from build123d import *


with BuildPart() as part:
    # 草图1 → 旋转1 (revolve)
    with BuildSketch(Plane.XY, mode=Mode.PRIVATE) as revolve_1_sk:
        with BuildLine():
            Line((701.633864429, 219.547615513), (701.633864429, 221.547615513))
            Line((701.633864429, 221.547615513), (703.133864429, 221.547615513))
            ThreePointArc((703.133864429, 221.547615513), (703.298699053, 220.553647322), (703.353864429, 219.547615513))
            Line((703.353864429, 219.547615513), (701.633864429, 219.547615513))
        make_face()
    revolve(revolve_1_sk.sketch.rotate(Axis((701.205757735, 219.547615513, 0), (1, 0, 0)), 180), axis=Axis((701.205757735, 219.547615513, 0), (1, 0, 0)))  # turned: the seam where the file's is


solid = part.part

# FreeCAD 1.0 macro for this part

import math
import FreeCAD as App
import Part
import Sketcher
from FreeCAD import Vector

doc = App.newDocument("Part")
body = doc.addObject("PartDesign::Body", "Body")

sketch1 = body.newObject("Sketcher::SketchObject", "Sketch")
sketch1.AttachmentSupport = (doc.getObject("XY_Plane"), [""])
sketch1.MapMode = "FlatFace"
sketch1.addGeometry([
    Part.LineSegment(Vector(701.633864, 221.547616, 0), Vector(701.633864, 219.547616, 0)),
    Part.LineSegment(Vector(701.633864, 219.547616, 0), Vector(703.353864, 219.547616, 0)),
    Part.ArcOfCircle(Part.Circle(Vector(694.152955, 219.547616, 0), Vector(0, 0, 1), 9.200909), math.radians(0), math.radians(12.554597)),
    Part.LineSegment(Vector(703.133864, 221.547616, 0), Vector(701.633864, 221.547616, 0)),
], False)
sketch1.addGeometry(Part.LineSegment(Vector(694.152955, 219.547616, 0), Vector(703.353864, 219.547616, 0)), True)
sketch1.addConstraint([
    Sketcher.Constraint("Coincident", 0, 2, 1, 1),
    Sketcher.Constraint("Coincident", 1, 2, 2, 1),
    Sketcher.Constraint("Coincident", 2, 2, 3, 1),
    Sketcher.Constraint("Coincident", 3, 2, 0, 1),
    Sketcher.Constraint("Vertical", 0),
    Sketcher.Constraint("Horizontal", 1),
    Sketcher.Constraint("Horizontal", 3),
    Sketcher.Constraint("Horizontal", 4),
    Sketcher.Constraint("Coincident", 4, 1, 2, 3),
    Sketcher.Constraint("Coincident", 4, 2, 1, 2),
    Sketcher.Constraint("DistanceY", 0, 2, 0, 1, 2.0),
    Sketcher.Constraint("DistanceX", 3, 2, 3, 1, 1.5),
    Sketcher.Constraint("DistanceX", 1, 1, 1, 2, 1.72),
    Sketcher.Constraint("DistanceX", -1, 1, 2, 3, 694.152955),
    Sketcher.Constraint("DistanceY", -1, 1, 2, 3, 219.547616),
])
revolution = body.newObject("PartDesign::Revolution", "Revolution")
revolution.Profile = sketch1
revolution.ReferenceAxis = (sketch1, ["Axis0"])
revolution.Angle = 360

doc.recompute()
